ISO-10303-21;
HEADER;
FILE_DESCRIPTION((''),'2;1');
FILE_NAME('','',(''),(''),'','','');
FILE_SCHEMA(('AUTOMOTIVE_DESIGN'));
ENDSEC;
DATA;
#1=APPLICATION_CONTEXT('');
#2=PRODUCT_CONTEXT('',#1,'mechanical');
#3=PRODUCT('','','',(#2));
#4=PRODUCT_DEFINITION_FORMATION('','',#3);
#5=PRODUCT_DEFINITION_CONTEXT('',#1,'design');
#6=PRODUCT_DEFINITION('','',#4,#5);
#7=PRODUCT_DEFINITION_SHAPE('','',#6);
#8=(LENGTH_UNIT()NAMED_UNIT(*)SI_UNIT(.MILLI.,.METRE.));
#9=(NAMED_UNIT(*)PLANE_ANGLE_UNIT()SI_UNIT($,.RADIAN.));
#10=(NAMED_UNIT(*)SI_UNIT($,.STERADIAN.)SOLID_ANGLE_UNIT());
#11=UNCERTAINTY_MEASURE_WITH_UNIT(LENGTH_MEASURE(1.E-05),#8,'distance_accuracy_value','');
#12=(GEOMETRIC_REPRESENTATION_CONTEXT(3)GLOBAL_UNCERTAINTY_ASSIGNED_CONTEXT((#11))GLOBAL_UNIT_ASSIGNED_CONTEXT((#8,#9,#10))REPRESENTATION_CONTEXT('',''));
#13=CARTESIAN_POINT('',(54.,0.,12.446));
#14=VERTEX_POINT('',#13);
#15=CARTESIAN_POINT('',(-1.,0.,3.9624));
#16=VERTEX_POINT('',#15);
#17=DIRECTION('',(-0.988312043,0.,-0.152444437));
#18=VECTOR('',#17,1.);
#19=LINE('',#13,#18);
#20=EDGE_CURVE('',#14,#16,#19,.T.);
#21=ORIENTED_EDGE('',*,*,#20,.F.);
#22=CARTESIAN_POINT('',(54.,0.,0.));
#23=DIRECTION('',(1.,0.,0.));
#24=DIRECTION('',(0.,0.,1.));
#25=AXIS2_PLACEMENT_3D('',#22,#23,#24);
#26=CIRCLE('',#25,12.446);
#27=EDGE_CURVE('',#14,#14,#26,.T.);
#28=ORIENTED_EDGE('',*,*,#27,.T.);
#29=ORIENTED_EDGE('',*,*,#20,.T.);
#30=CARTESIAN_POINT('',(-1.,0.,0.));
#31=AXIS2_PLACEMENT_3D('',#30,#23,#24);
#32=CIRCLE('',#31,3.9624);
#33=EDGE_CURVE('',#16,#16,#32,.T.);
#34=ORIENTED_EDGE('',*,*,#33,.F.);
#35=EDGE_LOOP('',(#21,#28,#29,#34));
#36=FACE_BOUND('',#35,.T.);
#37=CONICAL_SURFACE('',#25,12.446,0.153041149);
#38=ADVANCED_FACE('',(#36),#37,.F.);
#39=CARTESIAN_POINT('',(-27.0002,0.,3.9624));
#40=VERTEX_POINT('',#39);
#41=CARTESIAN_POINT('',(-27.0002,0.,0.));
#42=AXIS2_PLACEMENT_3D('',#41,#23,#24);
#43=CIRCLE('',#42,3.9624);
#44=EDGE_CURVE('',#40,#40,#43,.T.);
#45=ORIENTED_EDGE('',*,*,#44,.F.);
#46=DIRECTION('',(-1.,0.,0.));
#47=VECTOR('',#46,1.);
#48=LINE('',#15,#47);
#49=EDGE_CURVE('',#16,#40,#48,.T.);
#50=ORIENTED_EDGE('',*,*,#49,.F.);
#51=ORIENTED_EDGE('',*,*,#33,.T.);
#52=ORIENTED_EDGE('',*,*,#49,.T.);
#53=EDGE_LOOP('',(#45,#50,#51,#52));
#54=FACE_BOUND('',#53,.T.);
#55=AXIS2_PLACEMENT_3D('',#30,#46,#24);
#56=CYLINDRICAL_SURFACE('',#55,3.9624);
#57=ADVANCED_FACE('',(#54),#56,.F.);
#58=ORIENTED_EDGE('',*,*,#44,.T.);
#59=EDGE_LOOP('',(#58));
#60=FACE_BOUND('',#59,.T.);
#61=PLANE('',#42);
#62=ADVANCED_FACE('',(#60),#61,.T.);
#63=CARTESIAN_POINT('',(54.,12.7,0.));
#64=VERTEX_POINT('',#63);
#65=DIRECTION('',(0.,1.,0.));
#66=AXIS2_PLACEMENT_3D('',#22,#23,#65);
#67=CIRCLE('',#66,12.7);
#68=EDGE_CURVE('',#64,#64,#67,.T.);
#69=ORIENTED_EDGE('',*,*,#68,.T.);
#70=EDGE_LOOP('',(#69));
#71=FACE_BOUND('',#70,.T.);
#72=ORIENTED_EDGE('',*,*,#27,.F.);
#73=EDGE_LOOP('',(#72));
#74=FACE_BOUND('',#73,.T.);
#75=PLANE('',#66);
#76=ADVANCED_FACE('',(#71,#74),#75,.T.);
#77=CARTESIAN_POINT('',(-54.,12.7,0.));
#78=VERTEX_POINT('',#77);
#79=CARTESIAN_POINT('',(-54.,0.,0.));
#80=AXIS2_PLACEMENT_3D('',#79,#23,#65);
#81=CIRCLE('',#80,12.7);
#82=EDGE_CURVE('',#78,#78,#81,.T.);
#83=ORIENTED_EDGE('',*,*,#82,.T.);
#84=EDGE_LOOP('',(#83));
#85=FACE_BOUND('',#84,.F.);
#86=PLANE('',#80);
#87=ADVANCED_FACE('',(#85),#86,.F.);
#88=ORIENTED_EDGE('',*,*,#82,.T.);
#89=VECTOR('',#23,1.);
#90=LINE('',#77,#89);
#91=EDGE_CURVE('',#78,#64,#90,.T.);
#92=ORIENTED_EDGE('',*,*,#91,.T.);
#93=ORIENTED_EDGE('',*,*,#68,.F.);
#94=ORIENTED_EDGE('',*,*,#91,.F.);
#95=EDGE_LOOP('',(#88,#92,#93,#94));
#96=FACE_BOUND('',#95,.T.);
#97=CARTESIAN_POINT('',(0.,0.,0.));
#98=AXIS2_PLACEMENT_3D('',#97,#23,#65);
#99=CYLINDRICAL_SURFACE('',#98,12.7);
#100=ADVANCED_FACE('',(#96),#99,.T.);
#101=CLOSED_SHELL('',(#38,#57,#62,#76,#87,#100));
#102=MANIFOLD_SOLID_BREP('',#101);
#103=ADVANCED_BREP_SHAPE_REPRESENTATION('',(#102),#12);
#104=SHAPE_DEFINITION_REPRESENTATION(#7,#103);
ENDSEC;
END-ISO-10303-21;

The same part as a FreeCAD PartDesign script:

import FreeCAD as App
import Part
import Sketcher
from FreeCAD import Vector
Q = App.Units.Quantity


def add_polygon(sketch, points):
    """Adds a closed chain of lines whose ends are joined by coincident constraints."""
    first, n = sketch.GeometryCount, len(points)
    for a, b in zip(points, points[1:] + points[:1]):
        sketch.addGeometry(Part.LineSegment(App.Vector(*a, 0), App.Vector(*b, 0)), False)
    for i in range(n):
        sketch.addConstraint(Sketcher.Constraint("Coincident", first + i, 2, first + (i + 1) % n, 1))

doc = App.newDocument("Part")
body = doc.addObject("PartDesign::Body", "Body")

sketch1 = doc.addObject("Sketcher::SketchObject", "Sketch")
body.addObject(sketch1)
sketch1.AttachmentSupport = (doc.YZ_Plane, [""])
sketch1.MapMode = "FlatFace"
sketch1.addGeometry(Part.Circle(Vector(0, 0, 0), Vector(0, 0, 1), 13), False)
sketch1.addConstraint([
    Sketcher.Constraint("Coincident", 0, 3, -1, 1),
    Sketcher.Constraint("Diameter", 0, Q("1 in")),
])
pad1 = doc.addObject("PartDesign::Pad", "Pad")
body.addObject(pad1)
pad1.Profile = sketch1
pad1.Length = 108
pad1.Midplane = True

sketch2 = doc.addObject("Sketcher::SketchObject", "Sketch001")
body.addObject(sketch2)
sketch2.AttachmentSupport = (doc.XZ_Plane, [""])
sketch2.MapMode = "FlatFace"
add_polygon(sketch2, [(-27, 0), (54, 0), (54, 12.4), (-1, 4), (-27, 4)])
sketch2.addConstraint([
    Sketcher.Constraint("Horizontal", 0),
    Sketcher.Constraint("Vertical", 1),
    Sketcher.Constraint("Horizontal", 3),
    Sketcher.Constraint("Vertical", 4),
    Sketcher.Constraint("PointOnObject", 0, 2, -1),
    Sketcher.Constraint("DistanceY", 1, 1, 1, 2, Q("0.49 in")),
    Sketcher.Constraint("DistanceY", 4, 2, 4, 1, Q("0.156 in")),
    Sketcher.Constraint("DistanceX", 3, 2, -1, 1, Q("1.063 in")),
    Sketcher.Constraint("DistanceX", 0, 1, 0, 2, 81.0002),
    Sketcher.Constraint("DistanceX", 3, 2, 3, 1, 26.0002),
])
groove = doc.addObject("PartDesign::Groove", "Groove")
body.addObject(groove)
groove.Profile = sketch2
groove.ReferenceAxis = (sketch2, ["H_Axis"])
groove.Angle = 360

doc.recompute()
